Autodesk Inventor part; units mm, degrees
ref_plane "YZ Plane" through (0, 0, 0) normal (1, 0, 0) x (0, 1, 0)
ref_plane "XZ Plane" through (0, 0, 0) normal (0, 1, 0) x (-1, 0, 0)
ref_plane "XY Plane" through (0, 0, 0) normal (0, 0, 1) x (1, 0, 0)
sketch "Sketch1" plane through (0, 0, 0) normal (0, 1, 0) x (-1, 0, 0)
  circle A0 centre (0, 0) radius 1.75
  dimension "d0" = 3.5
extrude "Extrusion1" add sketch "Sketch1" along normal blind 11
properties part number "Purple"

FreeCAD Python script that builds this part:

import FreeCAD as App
import Part
import Sketcher
from FreeCAD import Vector

doc = App.newDocument("Part")
body = doc.addObject("PartDesign::Body", "Body")

# Sketch on XZ plane
sketch1 = doc.addObject("Sketcher::SketchObject", "Sketch")
body.addObject(sketch1)
sketch1.AttachmentSupport = (doc.XZ_Plane, [""])
sketch1.MapMode = "FlatFace"
sketch1.addGeometry(Part.Circle(Vector(0, 0, 0), Vector(0, 0, 1), 1.8), False)
sketch1.addConstraint(Sketcher.Constraint("Coincident", 0, 3, -1, 1))
sketch1.addConstraint(Sketcher.Constraint("Diameter", 0, 3.5))
pad1 = doc.addObject("PartDesign::Pad", "Pad")
body.addObject(pad1)
pad1.Profile = sketch1
pad1.Length = 11
pad1.Reversed = True

doc.recompute()
